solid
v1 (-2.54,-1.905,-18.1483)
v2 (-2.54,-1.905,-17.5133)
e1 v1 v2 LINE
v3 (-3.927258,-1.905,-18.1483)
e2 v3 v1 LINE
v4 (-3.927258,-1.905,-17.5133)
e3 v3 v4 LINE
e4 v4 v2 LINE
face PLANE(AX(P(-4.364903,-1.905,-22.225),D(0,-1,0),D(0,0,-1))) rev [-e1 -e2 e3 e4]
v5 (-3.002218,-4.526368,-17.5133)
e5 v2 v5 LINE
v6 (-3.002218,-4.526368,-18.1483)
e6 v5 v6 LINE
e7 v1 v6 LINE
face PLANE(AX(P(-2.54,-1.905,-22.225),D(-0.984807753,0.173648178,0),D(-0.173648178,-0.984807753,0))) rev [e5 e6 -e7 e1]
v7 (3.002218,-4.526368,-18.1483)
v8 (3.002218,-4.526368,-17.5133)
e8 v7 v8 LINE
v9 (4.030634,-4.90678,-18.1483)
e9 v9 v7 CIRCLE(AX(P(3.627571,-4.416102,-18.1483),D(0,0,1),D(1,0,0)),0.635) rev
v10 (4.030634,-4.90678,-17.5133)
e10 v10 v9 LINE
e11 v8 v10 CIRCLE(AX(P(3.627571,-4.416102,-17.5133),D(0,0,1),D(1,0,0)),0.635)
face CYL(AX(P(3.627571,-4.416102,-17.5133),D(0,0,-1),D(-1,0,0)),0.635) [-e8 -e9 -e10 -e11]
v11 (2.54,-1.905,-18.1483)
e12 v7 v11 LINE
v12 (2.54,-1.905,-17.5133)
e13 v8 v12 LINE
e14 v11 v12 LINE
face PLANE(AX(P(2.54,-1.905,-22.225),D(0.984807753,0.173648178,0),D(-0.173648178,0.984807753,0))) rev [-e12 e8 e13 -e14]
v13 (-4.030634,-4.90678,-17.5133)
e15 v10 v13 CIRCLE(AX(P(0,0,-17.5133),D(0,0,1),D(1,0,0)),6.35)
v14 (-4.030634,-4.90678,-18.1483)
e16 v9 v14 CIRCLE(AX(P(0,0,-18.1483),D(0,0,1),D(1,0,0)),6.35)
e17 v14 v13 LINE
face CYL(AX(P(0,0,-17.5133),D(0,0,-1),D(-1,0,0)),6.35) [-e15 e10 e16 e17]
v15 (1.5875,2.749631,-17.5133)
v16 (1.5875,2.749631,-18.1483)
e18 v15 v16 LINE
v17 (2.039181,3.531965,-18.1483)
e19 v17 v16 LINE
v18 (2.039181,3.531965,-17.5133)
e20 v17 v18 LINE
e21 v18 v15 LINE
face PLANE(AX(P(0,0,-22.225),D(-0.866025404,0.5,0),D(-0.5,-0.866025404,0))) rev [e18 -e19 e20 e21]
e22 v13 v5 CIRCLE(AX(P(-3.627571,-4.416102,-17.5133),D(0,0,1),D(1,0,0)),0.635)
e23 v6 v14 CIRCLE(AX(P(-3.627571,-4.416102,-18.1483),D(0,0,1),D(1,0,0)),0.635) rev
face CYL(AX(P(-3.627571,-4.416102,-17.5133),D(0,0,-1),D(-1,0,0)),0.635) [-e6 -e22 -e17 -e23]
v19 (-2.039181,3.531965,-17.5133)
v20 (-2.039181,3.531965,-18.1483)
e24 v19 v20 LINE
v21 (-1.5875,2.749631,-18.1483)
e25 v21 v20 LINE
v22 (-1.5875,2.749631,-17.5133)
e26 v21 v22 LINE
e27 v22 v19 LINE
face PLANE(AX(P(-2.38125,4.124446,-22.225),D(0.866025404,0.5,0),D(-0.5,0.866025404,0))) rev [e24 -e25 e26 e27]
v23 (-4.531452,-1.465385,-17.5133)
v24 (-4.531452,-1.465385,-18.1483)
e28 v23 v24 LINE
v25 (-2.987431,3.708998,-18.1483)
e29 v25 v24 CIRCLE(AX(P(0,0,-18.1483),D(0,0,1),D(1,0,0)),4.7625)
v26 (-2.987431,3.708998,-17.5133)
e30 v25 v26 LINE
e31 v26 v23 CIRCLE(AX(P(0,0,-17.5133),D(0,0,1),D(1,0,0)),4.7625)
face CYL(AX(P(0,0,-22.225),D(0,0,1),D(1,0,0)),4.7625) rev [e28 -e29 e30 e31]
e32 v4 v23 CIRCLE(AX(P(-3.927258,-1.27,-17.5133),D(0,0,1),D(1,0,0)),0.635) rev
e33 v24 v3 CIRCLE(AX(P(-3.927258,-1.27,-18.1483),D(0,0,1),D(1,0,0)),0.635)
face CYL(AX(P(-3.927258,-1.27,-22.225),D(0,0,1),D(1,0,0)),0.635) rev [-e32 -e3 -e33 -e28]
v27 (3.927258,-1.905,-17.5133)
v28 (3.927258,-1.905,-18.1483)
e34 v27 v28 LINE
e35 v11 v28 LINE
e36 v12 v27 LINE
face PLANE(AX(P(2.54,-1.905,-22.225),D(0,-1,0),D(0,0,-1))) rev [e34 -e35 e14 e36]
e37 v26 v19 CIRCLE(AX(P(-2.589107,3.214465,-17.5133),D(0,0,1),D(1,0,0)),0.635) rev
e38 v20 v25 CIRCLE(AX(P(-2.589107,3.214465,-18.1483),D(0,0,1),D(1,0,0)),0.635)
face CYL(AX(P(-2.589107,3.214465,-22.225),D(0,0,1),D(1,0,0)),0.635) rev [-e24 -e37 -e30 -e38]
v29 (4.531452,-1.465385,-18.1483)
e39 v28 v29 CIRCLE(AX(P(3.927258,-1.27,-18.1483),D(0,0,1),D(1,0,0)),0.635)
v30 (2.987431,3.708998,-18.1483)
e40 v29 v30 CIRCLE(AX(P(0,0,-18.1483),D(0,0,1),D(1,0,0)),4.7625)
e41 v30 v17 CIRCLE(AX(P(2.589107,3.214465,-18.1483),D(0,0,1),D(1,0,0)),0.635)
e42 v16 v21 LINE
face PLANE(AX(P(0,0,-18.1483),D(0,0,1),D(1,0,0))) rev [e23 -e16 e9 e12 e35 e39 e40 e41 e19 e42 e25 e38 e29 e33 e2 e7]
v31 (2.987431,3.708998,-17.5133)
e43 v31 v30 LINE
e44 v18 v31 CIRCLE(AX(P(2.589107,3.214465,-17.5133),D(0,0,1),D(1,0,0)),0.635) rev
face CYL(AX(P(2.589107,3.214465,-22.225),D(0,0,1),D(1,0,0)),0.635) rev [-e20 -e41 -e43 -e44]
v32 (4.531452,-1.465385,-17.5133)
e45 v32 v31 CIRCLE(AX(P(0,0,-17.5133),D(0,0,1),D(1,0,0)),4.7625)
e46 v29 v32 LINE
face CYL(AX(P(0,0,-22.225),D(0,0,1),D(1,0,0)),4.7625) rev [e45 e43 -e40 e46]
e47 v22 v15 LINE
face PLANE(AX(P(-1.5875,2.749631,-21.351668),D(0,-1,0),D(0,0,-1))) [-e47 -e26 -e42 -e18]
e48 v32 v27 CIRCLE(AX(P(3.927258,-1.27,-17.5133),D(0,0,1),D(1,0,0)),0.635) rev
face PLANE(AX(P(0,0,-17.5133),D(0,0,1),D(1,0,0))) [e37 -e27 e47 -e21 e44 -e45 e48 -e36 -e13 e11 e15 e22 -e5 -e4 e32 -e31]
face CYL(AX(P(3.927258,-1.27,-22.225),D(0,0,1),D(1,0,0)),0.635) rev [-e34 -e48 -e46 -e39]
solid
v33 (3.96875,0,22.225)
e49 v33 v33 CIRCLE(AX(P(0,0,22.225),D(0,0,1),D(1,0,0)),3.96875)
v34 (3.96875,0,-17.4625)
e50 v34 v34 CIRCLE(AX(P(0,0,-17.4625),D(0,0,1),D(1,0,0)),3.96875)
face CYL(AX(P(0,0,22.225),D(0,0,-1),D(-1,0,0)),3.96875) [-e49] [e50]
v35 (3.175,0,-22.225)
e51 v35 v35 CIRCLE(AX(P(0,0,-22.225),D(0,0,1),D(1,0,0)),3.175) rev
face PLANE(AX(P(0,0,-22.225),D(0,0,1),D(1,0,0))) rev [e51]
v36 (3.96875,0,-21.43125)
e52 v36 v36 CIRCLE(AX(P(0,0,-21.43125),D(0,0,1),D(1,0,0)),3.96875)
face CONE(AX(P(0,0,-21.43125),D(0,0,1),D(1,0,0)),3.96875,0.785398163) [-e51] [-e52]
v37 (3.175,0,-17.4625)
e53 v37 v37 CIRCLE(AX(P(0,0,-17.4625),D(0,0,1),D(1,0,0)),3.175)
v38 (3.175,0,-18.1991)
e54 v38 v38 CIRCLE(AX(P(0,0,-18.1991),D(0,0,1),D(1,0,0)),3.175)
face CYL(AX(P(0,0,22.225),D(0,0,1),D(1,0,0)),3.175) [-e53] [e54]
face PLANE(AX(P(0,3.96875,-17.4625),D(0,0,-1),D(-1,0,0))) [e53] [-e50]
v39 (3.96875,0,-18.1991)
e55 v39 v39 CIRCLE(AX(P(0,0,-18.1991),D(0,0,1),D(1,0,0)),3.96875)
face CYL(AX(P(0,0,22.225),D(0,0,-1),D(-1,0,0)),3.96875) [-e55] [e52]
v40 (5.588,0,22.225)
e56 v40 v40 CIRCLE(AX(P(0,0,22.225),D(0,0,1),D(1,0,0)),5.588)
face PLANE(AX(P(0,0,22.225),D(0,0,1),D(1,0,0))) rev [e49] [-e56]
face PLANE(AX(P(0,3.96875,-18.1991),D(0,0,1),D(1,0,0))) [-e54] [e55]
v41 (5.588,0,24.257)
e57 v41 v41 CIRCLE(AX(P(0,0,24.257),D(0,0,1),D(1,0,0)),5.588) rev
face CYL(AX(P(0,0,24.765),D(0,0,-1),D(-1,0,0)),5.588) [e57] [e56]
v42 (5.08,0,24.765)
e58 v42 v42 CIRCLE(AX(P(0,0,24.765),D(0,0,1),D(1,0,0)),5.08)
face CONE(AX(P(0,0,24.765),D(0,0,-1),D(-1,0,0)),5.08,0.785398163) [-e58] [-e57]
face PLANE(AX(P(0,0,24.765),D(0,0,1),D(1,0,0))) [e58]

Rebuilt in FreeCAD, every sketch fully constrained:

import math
import FreeCAD as App
import Part
import Sketcher
Q = App.Units.Quantity


def edges_at(feature, points):
    """Names of the edges that pass closest to the given points."""
    edges = feature.Shape.Edges
    near = lambda p: min(range(len(edges)), key=lambda i: edges[i].distToShape(Part.Vertex(*p))[0])
    return sorted({f"Edge{near(p) + 1}" for p in points})

doc = App.newDocument("Part")
body = doc.addObject("PartDesign::Body", "Body")

sketch1 = body.newObject("Sketcher::SketchObject", "Sketch")
sketch1.AttachmentSupport = (doc.getObject("XY_Plane"), [""])
sketch1.MapMode = "FlatFace"
sketch1.addGeometry(Part.Circle(App.Vector(0, 0, 0), App.Vector(0, 0, 1), 4), False)
sketch1.addConstraint([
    Sketcher.Constraint("Coincident", 0, 3, -1, 1),
    Sketcher.Constraint("Diameter", 0, Q("0.3125 in")),
])
pad1 = body.newObject("PartDesign::Pad", "Pad")
pad1.Profile = sketch1
pad1.Length = Q("1.75 in")
pad1.Midplane = True

sketch2 = body.newObject("Sketcher::SketchObject", "Sketch001")
sketch2.AttachmentSupport = (doc.getObject("YZ_Plane"), [""])
sketch2.MapMode = "FlatFace"
sketch2.addGeometry([
    Part.LineSegment(App.Vector(4, -17.5, 0), App.Vector(3.2, -17.5, 0)),
    Part.LineSegment(App.Vector(3.2, -17.5, 0), App.Vector(3.2, -18.2, 0)),
    Part.LineSegment(App.Vector(3.2, -18.2, 0), App.Vector(4, -18.2, 0)),
    Part.LineSegment(App.Vector(4, -18.2, 0), App.Vector(4, -17.5, 0)),
], False)
sketch2.addConstraint([
    Sketcher.Constraint("Coincident", 0, 2, 1, 1),
    Sketcher.Constraint("Coincident", 1, 2, 2, 1),
    Sketcher.Constraint("Coincident", 2, 2, 3, 1),
    Sketcher.Constraint("Coincident", 3, 2, 0, 1),
    Sketcher.Constraint("Horizontal", 0),
    Sketcher.Constraint("Vertical", 1),
    Sketcher.Constraint("Horizontal", 2),
    Sketcher.Constraint("Vertical", 3),
    Sketcher.Constraint("DistanceX", 0, 2, 0, 1, Q("0.03125 in")),
    Sketcher.Constraint("DistanceY", 1, 2, 1, 1, Q("0.029 in")),
    Sketcher.Constraint("DistanceX", -1, 1, 0, 2, Q("0.125 in")),
    Sketcher.Constraint("DistanceY", 0, 2, -1, 1, Q("0.6875 in")),
])
groove = body.newObject("PartDesign::Groove", "Groove")
groove.Profile = sketch2
groove.ReferenceAxis = (sketch2, ["V_Axis"])
groove.Angle = 360

sketch3 = body.newObject("Sketcher::SketchObject", "Sketch002")
sketch3.AttachmentSupport = (doc.getObject("XY_Plane"), [""])
sketch3.MapMode = "FlatFace"
sketch3.AttachmentOffset = App.Placement(App.Vector(0, 0, 0.875 * 25.4), App.Rotation())
sketch3.addGeometry(Part.Circle(App.Vector(0, 0, 0), App.Vector(0, 0, 1), 6), False)
sketch3.addConstraint([
    Sketcher.Constraint("Coincident", 0, 3, -1, 1),
    Sketcher.Constraint("Diameter", 0, Q("0.44 in")),
])
pad2 = body.newObject("PartDesign::Pad", "Pad001")
pad2.Profile = sketch3
pad2.Length = Q("0.1 in")
doc.recompute()

chamfer = body.newObject("PartDesign::Chamfer", "Chamfer")
chamfer.Base = (pad2, edges_at(pad2, [(-5.588, 0, 24.765)]))
chamfer.Size = Q("0.02 in")
doc.recompute()

chamfer2 = body.newObject("PartDesign::Chamfer", "Chamfer001")
chamfer2.Base = (chamfer, edges_at(chamfer, [(-3.969, 0, -22.225)]))
chamfer2.Size = Q("0.03125 in")
body2 = doc.addObject("PartDesign::Body", "Body001")

sketch4 = body2.newObject("Sketcher::SketchObject", "Sketch003")
sketch4.AttachmentSupport = (doc.getObject("XY_Plane001"), [""])
sketch4.MapMode = "FlatFace"
sketch4.AttachmentOffset = App.Placement(App.Vector(0, 0, -0.702 * 25.4), App.Rotation())
sketch4.addGeometry([
    Part.Circle(App.Vector(0, 0, 0), App.Vector(0, 0, 1), 6.3),
    Part.Circle(App.Vector(0, 0, 0), App.Vector(0, 0, 1), 3.2),
], False)
sketch4.addConstraint([
    Sketcher.Constraint("Coincident", 0, 3, -1, 1),
    Sketcher.Constraint("Coincident", 1, 3, -1, 1),
    Sketcher.Constraint("Diameter", 0, Q("0.5 in")),
    Sketcher.Constraint("Diameter", 1, Q("0.25 in")),
])
pad3 = body2.newObject("PartDesign::Pad", "Pad002")
pad3.Profile = sketch4
pad3.Length = Q("0.025 in")
pad3.Midplane = True

sketch5 = body2.newObject("Sketcher::SketchObject", "Sketch004")
sketch5.AttachmentSupport = (doc.getObject("XY_Plane001"), [""])
sketch5.MapMode = "FlatFace"
sketch5.addGeometry([
    Part.LineSegment(App.Vector(0, 0, 0), App.Vector(-2.4, 4.1, 0)),
    Part.ArcOfCircle(Part.Circle(App.Vector(0, 0, 0), App.Vector(0, 0, 1), 4.8), math.radians(120), math.radians(204)),
    Part.LineSegment(App.Vector(-4.4, -1.9, 0), App.Vector(-2.5, -1.9, 0)),
    Part.LineSegment(App.Vector(-2.5, -1.9, 0), App.Vector(-3.2, -5.5, 0)),
    Part.ArcOfCircle(Part.Circle(App.Vector(0, 0, 0), App.Vector(0, 0, 1), 6.4), math.radians(-120), math.radians(-60)),
    Part.LineSegment(App.Vector(3.2, -5.5, 0), App.Vector(2.5, -1.9, 0)),
    Part.LineSegment(App.Vector(2.5, -1.9, 0), App.Vector(4.4, -1.9, 0)),
    Part.ArcOfCircle(Part.Circle(App.Vector(0, 0, 0), App.Vector(0, 0, 1), 4.8), math.radians(-24), math.radians(60)),
    Part.LineSegment(App.Vector(2.4, 4.1, 0), App.Vector(0, 0, 0)),
], False)
sketch5.addConstraint([
    Sketcher.Constraint("Coincident", 0, 2, 1, 1),
    Sketcher.Constraint("Coincident", 1, 2, 2, 1),
    Sketcher.Constraint("Coincident", 2, 2, 3, 1),
    Sketcher.Constraint("Coincident", 3, 2, 4, 1),
    Sketcher.Constraint("Coincident", 4, 2, 5, 1),
    Sketcher.Constraint("Coincident", 5, 2, 6, 1),
    Sketcher.Constraint("Coincident", 6, 2, 7, 1),
    Sketcher.Constraint("Coincident", 7, 2, 8, 1),
    Sketcher.Constraint("Coincident", 8, 2, 0, 1),
    Sketcher.Constraint("Horizontal", 2),
    Sketcher.Constraint("Horizontal", 6),
    Sketcher.Constraint("Coincident", 1, 3, -1, 1),
    Sketcher.Constraint("Coincident", 4, 3, -1, 1),
    Sketcher.Constraint("Coincident", 7, 3, -1, 1),
    Sketcher.Constraint("Coincident", 8, 2, -1, 1),
    Sketcher.Constraint("Equal", 1, 7),
    Sketcher.Constraint("Symmetric", 2, 2, 5, 2, -2),
    Sketcher.Constraint("Horizontal", 3, 2, 4, 2),
    Sketcher.Constraint("Horizontal", 0, 2, 7, 2),
    Sketcher.Constraint("Radius", 4, Q("0.25 in")),
    Sketcher.Constraint("Angle", 0, Q("120 deg")),
    Sketcher.Constraint("Angle", 3, Q("-100 deg")),
    Sketcher.Constraint("Radius", 1, Q("0.1875 in")),
    Sketcher.Constraint("DistanceX", 2, 2, -1, 1, Q("0.1 in")),
    Sketcher.Constraint("DistanceY", 1, 2, -1, 1, Q("0.075 in")),
])
pocket1 = body2.newObject("PartDesign::Pocket", "Pocket")
pocket1.Profile = sketch5
pocket1.Type = "ThroughAll"

sketch6 = body2.newObject("Sketcher::SketchObject", "Sketch005")
sketch6.AttachmentSupport = (doc.getObject("XY_Plane001"), [""])
sketch6.MapMode = "FlatFace"
sketch6.AttachmentOffset = App.Placement(App.Vector(0, 0, -0.6895 * 25.4), App.Rotation())
sketch6.addGeometry([
    Part.LineSegment(App.Vector(-1.6, 2.7, 0), App.Vector(1.6, 2.7, 0)),
    Part.ArcOfCircle(Part.Circle(App.Vector(0, 0, 0), App.Vector(0, 0, 1), 3.2), math.radians(60), math.radians(120)),
], False)
sketch6.addConstraint([
    Sketcher.Constraint("Coincident", 0, 1, 1, 2),
    Sketcher.Constraint("Coincident", 1, 1, 0, 2),
    Sketcher.Constraint("Horizontal", 0),
    Sketcher.Constraint("Coincident", 1, 3, -1, 1),
    Sketcher.Constraint("Radius", 1, Q("0.125 in")),
    Sketcher.Constraint("DistanceX", 0, 1, 0, 2, Q("0.125 in")),
])
pad4 = body2.newObject("PartDesign::Pad", "Pad003")
pad4.Profile = sketch6
pad4.Length = Q("0.025 in")
pad4.Reversed = True
doc.recompute()

fillet = body2.newObject("PartDesign::Fillet", "Fillet")
fillet.Base = (pad4, edges_at(pad4, [
    (2.381, 4.124, -17.831),
    (3.174, -5.5, -17.831),
    (-4.365, -1.905, -17.831),
    (4.365, -1.905, -17.831),
    (-3.174, -5.5, -17.831),
    (-2.381, 4.124, -17.831),
]))
fillet.Radius = Q("0.025 in")

doc.recompute()
